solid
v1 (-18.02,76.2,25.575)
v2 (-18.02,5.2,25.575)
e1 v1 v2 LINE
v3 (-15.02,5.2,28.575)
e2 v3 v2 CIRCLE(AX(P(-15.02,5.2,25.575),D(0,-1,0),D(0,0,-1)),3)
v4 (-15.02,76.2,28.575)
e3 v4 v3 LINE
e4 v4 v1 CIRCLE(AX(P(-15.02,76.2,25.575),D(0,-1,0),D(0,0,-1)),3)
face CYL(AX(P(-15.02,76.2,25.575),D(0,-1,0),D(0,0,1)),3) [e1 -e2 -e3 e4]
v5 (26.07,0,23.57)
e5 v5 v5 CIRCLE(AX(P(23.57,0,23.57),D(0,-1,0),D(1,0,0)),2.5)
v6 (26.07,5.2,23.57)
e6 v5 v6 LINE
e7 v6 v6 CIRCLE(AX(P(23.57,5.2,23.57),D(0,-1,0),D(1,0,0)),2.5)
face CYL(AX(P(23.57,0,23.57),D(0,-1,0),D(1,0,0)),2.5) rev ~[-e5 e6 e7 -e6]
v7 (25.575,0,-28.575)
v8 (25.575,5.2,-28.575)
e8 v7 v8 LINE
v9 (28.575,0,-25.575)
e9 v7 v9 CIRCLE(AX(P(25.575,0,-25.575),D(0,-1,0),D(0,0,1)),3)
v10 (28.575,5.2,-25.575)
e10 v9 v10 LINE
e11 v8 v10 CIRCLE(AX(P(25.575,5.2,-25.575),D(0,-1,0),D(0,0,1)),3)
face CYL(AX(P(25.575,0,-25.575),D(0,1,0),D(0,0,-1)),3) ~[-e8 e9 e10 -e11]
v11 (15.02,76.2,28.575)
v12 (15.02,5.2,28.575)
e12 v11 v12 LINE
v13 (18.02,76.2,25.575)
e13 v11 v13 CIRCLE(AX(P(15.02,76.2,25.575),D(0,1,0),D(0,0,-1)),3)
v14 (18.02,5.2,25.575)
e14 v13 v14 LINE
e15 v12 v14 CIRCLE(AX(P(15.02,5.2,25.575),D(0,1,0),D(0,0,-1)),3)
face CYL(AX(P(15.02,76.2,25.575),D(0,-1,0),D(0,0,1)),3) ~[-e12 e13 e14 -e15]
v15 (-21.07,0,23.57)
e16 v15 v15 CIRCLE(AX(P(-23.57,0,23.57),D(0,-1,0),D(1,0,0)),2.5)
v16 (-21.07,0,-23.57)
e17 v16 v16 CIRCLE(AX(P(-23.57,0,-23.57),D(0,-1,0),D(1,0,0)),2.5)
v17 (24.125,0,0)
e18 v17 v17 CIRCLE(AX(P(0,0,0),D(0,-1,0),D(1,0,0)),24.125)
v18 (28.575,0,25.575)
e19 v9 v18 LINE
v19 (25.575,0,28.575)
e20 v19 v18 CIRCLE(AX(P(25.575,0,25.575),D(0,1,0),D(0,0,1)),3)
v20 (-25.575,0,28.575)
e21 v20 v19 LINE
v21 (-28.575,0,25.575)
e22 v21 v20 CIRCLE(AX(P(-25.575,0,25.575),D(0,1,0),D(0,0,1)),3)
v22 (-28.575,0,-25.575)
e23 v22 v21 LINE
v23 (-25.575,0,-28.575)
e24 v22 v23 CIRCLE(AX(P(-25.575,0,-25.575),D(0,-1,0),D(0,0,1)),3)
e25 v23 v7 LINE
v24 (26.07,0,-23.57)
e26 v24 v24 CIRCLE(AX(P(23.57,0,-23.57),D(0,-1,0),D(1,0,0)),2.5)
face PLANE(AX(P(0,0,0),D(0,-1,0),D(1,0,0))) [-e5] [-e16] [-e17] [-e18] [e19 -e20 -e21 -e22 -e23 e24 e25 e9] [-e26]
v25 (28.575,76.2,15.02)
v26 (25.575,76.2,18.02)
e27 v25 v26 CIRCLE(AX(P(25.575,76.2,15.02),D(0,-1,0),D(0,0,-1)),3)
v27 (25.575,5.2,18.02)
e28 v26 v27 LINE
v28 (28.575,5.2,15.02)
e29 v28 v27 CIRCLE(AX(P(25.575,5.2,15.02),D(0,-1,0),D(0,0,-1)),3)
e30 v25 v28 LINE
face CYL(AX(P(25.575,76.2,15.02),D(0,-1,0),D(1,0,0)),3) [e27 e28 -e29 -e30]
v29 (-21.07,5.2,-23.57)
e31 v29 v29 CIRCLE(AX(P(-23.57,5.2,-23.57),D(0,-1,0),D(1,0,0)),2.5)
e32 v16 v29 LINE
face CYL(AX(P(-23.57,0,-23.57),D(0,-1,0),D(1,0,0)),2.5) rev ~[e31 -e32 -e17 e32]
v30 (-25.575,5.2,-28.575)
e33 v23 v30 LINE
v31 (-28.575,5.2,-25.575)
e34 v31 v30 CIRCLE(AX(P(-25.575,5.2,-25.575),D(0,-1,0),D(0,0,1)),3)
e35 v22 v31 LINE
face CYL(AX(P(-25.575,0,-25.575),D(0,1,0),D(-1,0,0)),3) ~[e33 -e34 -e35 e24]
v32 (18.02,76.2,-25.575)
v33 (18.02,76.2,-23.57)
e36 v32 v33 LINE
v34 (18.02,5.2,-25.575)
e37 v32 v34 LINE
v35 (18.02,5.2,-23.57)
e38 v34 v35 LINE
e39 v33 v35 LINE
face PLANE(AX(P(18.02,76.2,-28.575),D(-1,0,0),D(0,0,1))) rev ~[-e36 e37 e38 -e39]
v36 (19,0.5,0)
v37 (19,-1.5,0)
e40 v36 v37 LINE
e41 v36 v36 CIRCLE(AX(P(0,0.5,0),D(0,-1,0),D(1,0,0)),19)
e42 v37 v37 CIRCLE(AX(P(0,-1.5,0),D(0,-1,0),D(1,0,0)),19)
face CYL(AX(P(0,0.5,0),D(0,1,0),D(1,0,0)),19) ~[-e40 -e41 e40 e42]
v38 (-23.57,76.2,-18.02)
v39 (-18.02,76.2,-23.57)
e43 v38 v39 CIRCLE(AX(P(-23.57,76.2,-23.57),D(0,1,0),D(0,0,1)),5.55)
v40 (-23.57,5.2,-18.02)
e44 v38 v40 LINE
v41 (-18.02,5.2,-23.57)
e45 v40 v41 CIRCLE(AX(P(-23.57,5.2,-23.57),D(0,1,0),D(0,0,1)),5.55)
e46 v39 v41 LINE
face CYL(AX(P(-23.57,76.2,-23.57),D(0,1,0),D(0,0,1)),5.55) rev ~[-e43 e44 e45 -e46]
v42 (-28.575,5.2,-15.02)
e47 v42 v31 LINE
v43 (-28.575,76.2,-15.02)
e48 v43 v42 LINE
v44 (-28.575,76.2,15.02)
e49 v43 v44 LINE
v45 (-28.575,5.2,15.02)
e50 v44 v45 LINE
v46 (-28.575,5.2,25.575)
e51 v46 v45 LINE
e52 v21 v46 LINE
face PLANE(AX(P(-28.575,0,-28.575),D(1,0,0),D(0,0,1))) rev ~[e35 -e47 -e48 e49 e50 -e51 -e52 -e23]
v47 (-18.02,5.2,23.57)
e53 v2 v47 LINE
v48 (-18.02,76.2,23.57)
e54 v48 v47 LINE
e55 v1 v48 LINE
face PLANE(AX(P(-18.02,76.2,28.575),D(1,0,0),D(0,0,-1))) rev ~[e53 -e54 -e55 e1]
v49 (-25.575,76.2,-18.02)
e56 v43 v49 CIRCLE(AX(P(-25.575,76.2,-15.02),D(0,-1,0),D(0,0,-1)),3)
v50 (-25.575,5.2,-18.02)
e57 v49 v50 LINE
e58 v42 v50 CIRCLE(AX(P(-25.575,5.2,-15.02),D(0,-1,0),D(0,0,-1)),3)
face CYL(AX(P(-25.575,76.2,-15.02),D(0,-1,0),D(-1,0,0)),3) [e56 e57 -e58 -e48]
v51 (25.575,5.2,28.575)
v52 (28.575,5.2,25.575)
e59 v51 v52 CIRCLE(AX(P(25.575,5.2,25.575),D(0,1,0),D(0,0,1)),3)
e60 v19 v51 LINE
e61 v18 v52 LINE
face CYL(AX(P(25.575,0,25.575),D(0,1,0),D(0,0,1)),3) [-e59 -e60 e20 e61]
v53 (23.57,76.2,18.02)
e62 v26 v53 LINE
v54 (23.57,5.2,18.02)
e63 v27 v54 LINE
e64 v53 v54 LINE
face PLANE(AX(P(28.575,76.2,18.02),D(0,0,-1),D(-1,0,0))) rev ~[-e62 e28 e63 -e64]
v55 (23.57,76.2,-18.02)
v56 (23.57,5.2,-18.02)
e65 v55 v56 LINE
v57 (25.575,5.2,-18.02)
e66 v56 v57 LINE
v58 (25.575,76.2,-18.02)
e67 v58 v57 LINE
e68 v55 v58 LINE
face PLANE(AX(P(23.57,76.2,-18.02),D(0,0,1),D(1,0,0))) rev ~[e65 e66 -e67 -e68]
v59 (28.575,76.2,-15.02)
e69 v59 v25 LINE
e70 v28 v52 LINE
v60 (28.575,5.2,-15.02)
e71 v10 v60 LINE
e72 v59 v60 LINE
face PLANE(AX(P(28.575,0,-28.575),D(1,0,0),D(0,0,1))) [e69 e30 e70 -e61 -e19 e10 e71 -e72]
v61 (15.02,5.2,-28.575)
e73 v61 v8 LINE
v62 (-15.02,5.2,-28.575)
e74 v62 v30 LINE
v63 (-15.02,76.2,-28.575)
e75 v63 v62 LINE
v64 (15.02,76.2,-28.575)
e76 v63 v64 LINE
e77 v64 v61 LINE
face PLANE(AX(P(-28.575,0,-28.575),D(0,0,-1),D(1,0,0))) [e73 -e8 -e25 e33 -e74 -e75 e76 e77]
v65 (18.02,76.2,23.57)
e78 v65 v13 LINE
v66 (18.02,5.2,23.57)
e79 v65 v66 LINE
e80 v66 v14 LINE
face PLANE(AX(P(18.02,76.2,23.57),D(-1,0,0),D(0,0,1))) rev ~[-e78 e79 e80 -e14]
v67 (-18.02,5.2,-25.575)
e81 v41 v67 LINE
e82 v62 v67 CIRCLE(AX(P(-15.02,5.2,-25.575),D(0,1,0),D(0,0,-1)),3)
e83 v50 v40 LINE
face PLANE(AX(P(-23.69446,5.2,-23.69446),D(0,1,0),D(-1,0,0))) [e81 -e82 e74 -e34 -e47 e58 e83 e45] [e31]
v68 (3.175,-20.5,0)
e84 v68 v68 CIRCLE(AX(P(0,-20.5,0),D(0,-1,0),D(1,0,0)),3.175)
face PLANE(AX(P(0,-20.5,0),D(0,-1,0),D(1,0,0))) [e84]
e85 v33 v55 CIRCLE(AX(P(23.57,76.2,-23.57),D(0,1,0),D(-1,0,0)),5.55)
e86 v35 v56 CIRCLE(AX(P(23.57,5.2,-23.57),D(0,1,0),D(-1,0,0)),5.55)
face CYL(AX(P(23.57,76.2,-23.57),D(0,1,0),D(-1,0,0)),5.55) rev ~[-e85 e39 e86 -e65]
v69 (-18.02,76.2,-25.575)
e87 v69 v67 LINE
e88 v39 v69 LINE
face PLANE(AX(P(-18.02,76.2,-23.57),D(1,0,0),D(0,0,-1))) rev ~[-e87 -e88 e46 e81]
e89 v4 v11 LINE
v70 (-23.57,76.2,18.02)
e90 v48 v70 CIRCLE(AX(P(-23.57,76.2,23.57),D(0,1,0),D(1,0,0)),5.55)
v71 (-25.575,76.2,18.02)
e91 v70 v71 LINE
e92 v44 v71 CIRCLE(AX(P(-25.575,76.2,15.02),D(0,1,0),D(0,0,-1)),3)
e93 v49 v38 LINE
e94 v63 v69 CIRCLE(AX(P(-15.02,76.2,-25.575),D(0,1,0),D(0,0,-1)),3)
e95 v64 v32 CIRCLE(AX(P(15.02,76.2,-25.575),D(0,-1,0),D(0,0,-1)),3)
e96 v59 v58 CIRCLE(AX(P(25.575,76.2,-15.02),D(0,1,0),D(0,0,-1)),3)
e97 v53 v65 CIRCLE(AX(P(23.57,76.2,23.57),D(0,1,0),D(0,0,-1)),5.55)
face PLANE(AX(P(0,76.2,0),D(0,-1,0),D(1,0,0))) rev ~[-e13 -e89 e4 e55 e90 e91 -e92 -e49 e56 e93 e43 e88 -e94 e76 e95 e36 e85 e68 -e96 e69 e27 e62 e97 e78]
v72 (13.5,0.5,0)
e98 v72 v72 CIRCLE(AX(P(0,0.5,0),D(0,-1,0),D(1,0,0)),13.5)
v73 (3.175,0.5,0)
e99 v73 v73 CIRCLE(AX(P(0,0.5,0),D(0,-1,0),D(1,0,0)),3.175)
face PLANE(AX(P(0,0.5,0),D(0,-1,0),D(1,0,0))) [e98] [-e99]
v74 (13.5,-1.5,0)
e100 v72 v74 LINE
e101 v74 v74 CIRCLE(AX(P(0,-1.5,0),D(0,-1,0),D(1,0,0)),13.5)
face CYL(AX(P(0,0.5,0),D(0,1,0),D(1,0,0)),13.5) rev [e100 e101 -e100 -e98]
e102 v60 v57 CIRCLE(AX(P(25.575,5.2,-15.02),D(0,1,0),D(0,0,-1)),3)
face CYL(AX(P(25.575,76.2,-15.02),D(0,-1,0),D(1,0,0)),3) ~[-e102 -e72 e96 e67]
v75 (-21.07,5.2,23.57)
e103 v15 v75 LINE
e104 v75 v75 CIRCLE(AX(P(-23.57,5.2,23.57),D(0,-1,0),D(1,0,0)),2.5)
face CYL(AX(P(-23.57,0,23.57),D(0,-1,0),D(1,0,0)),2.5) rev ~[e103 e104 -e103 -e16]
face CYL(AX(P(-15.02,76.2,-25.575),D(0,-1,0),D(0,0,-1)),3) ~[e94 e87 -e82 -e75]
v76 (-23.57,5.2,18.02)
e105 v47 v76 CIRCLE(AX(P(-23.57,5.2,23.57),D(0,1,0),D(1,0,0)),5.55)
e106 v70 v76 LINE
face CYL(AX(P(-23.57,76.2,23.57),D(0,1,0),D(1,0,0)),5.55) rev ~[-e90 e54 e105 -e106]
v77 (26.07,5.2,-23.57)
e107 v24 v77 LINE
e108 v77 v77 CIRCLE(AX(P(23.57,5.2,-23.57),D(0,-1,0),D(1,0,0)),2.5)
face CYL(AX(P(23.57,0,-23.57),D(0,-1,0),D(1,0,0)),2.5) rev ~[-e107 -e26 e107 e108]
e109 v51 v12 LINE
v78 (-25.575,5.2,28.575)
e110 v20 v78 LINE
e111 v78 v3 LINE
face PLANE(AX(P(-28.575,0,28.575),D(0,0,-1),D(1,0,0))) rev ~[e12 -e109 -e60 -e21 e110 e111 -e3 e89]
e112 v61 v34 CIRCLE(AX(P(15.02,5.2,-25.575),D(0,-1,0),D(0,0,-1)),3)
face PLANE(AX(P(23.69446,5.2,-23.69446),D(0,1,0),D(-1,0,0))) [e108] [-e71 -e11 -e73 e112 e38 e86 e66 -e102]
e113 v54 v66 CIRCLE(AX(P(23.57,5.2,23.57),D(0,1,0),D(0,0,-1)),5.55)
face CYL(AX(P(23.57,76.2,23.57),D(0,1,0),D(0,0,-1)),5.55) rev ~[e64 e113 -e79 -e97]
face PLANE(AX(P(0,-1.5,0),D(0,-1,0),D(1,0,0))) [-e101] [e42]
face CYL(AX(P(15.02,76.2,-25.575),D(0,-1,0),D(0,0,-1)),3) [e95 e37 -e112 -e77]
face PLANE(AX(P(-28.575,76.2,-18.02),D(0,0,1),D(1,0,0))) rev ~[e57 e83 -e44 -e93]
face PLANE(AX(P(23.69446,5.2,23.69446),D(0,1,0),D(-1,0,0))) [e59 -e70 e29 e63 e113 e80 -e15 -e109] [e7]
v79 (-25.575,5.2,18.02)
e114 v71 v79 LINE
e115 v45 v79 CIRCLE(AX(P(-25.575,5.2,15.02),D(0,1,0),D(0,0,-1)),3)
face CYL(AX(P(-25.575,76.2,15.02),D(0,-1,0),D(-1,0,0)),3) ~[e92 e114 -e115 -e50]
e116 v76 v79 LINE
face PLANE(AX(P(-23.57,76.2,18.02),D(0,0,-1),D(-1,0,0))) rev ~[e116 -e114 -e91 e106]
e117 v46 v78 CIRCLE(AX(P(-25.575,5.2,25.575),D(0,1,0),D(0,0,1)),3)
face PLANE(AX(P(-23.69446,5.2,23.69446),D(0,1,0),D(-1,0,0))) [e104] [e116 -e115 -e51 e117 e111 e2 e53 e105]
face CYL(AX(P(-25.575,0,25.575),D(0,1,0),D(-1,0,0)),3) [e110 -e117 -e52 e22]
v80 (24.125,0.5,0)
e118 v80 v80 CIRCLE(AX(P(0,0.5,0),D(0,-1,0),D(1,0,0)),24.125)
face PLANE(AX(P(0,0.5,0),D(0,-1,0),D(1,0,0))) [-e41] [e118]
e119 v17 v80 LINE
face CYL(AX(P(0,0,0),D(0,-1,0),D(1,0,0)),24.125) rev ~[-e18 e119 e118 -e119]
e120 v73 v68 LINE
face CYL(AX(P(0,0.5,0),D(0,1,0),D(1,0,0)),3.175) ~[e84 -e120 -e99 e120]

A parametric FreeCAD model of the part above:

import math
import FreeCAD as App
import Part
import Sketcher
from FreeCAD import Vector


def edges_at(feature, points):
    """Names of the edges that pass closest to the given points."""
    edges = feature.Shape.Edges
    near = lambda p: min(range(len(edges)), key=lambda i: edges[i].distToShape(Part.Vertex(*p))[0])
    return sorted({f"Edge{near(p) + 1}" for p in points})

doc = App.newDocument("Part")
body = doc.addObject("PartDesign::Body", "Body")

sketch1 = body.newObject("Sketcher::SketchObject", "Sketch")
sketch1.AttachmentSupport = (doc.getObject("XZ_Plane"), [""])
sketch1.MapMode = "FlatFace"
sketch1.addGeometry([
    Part.LineSegment(Vector(-29, 29, 0), Vector(-29, -29, 0)),
    Part.LineSegment(Vector(-29, -29, 0), Vector(29, -29, 0)),
    Part.LineSegment(Vector(29, -29, 0), Vector(29, 29, 0)),
    Part.LineSegment(Vector(29, 29, 0), Vector(-29, 29, 0)),
], False)
sketch1.addConstraint([
    Sketcher.Constraint("Coincident", 0, 2, 1, 1),
    Sketcher.Constraint("Coincident", 1, 2, 2, 1),
    Sketcher.Constraint("Coincident", 2, 2, 3, 1),
    Sketcher.Constraint("Coincident", 3, 2, 0, 1),
    Sketcher.Constraint("Vertical", 0),
    Sketcher.Constraint("Horizontal", 1),
    Sketcher.Constraint("Vertical", 2),
    Sketcher.Constraint("Horizontal", 3),
    Sketcher.Constraint("Symmetric", 0, 2, 2, 2, -1, 1),
    Sketcher.Constraint("Equal", 3, 0),
    Sketcher.Constraint("DistanceX", 1, 1, 1, 2, 57.15),
])
pad1 = body.newObject("PartDesign::Pad", "Pad")
pad1.Profile = sketch1
pad1.Length = 76.2
pad1.Reversed = True

sketch2 = body.newObject("Sketcher::SketchObject", "Sketch001")
sketch2.AttachmentSupport = (doc.getObject("XZ_Plane"), [""])
sketch2.MapMode = "FlatFace"
sketch2.addGeometry([
    Part.Circle(Vector(-23.6, 23.6, 0), Vector(0, 0, 1), 2.5),
    Part.Circle(Vector(23.6, 23.6, 0), Vector(0, 0, 1), 2.5),
    Part.Circle(Vector(-23.6, -23.6, 0), Vector(0, 0, 1), 2.5),
    Part.Circle(Vector(23.6, -23.6, 0), Vector(0, 0, 1), 2.5),
], False)
sketch2.addConstraint([
    Sketcher.Constraint("Equal", 0, 1),
    Sketcher.Constraint("Equal", 1, 2),
    Sketcher.Constraint("Equal", 2, 3),
    Sketcher.Constraint("Symmetric", 1, 3, 2, 3, -1, 1),
    Sketcher.Constraint("Symmetric", 0, 3, 3, 3, -1, 1),
    Sketcher.Constraint("Symmetric", 0, 3, 1, 3, -2),
    Sketcher.Constraint("Diameter", 0, 5.0),
    Sketcher.Constraint("DistanceX", 0, 3, -1, 1, 23.57),
    Sketcher.Constraint("DistanceY", -1, 1, 0, 3, 23.57),
])
pocket1 = body.newObject("PartDesign::Pocket", "Pocket")
pocket1.Profile = sketch2
pocket1.Type = "ThroughAll"

sketch3 = body.newObject("Sketcher::SketchObject", "Sketch002")
sketch3.AttachmentSupport = (doc.getObject("XZ_Plane"), [""])
sketch3.MapMode = "FlatFace"
sketch3.AttachmentOffset = App.Placement(Vector(0, 0, -76.2), App.Rotation())
sketch3.addGeometry([
    Part.LineSegment(Vector(29, 18, 0), Vector(24, 18, 0)),
    Part.ArcOfCircle(Part.Circle(Vector(24, 24, 0), Vector(0, 0, 1), 6), math.radians(180), math.radians(270)),
    Part.LineSegment(Vector(18, 24, 0), Vector(18, 29, 0)),
    Part.LineSegment(Vector(18, 29, 0), Vector(29, 29, 0)),
    Part.LineSegment(Vector(29, 29, 0), Vector(29, 18, 0)),
    Part.LineSegment(Vector(-18, 29, 0), Vector(-18, 24, 0)),
    Part.ArcOfCircle(Part.Circle(Vector(-24, 24, 0), Vector(0, 0, 1), 6), math.radians(-90), math.radians(0)),
    Part.LineSegment(Vector(-24, 18, 0), Vector(-29, 18, 0)),
    Part.LineSegment(Vector(-29, 18, 0), Vector(-29, 29, 0)),
    Part.LineSegment(Vector(-29, 29, 0), Vector(-18, 29, 0)),
    Part.ArcOfCircle(Part.Circle(Vector(-24, -24, 0), Vector(0, 0, 1), 6), math.radians(0), math.radians(90)),
    Part.LineSegment(Vector(-18, -24, 0), Vector(-18, -29, 0)),
    Part.LineSegment(Vector(-18, -29, 0), Vector(-29, -29, 0)),
    Part.LineSegment(Vector(-29, -29, 0), Vector(-29, -18, 0)),
    Part.LineSegment(Vector(-29, -18, 0), Vector(-24, -18, 0)),
    Part.ArcOfCircle(Part.Circle(Vector(24, -24, 0), Vector(0, 0, 1), 6), math.radians(90), math.radians(180)),
    Part.LineSegment(Vector(24, -18, 0), Vector(29, -18, 0)),
    Part.LineSegment(Vector(29, -18, 0), Vector(29, -29, 0)),
    Part.LineSegment(Vector(29, -29, 0), Vector(18, -29, 0)),
    Part.LineSegment(Vector(18, -29, 0), Vector(18, -24, 0)),
], False)
sketch3.addConstraint([
    Sketcher.Constraint("Tangent", 0, 2, 1, 2),
    Sketcher.Constraint("Tangent", 1, 1, 2, 1),
    Sketcher.Constraint("Coincident", 2, 2, 3, 1),
    Sketcher.Constraint("Coincident", 3, 2, 4, 1),
    Sketcher.Constraint("Coincident", 4, 2, 0, 1),
    Sketcher.Constraint("Tangent", 5, 2, 6, 2),
    Sketcher.Constraint("Tangent", 6, 1, 7, 1),
    Sketcher.Constraint("Coincident", 7, 2, 8, 1),
    Sketcher.Constraint("Coincident", 8, 2, 9, 1),
    Sketcher.Constraint("Coincident", 9, 2, 5, 1),
    Sketcher.Constraint("Tangent", 10, 1, 11, 1),
    Sketcher.Constraint("Coincident", 11, 2, 12, 1),
    Sketcher.Constraint("Coincident", 12, 2, 13, 1),
    Sketcher.Constraint("Coincident", 13, 2, 14, 1),
    Sketcher.Constraint("Tangent", 14, 2, 10, 2),
    Sketcher.Constraint("Tangent", 15, 1, 16, 1),
    Sketcher.Constraint("Coincident", 16, 2, 17, 1),
    Sketcher.Constraint("Coincident", 17, 2, 18, 1),
    Sketcher.Constraint("Coincident", 18, 2, 19, 1),
    Sketcher.Constraint("Tangent", 19, 2, 15, 2),
    Sketcher.Constraint("Horizontal", 0),
    Sketcher.Constraint("Vertical", 2),
    Sketcher.Constraint("Horizontal", 3),
    Sketcher.Constraint("Vertical", 4),
    Sketcher.Constraint("Vertical", 5),
    Sketcher.Constraint("Horizontal", 7),
    Sketcher.Constraint("Vertical", 8),
    Sketcher.Constraint("Horizontal", 9),
    Sketcher.Constraint("Vertical", 11),
    Sketcher.Constraint("Horizontal", 12),
    Sketcher.Constraint("Vertical", 13),
    Sketcher.Constraint("Horizontal", 14),
    Sketcher.Constraint("Horizontal", 16),
    Sketcher.Constraint("Vertical", 17),
    Sketcher.Constraint("Horizontal", 18),
    Sketcher.Constraint("Vertical", 19),
    Sketcher.Constraint("Equal", 1, 6),
    Sketcher.Constraint("Equal", 6, 10),
    Sketcher.Constraint("Equal", 10, 15),
    Sketcher.Constraint("Symmetric", 1, 3, 10, 3, -1, 1),
    Sketcher.Constraint("Symmetric", 6, 3, 15, 3, -1, 1),
    Sketcher.Constraint("Symmetric", 3, 2, 12, 2, -1, 1),
    Sketcher.Constraint("Symmetric", 8, 2, 17, 2, -1, 1),
    Sketcher.Constraint("Symmetric", 1, 3, 6, 3, -2),
    Sketcher.Constraint("Symmetric", 3, 2, 8, 2, -2),
    Sketcher.Constraint("Equal", 16, 2),
    Sketcher.Constraint("Radius", 1, 5.55),
    Sketcher.Constraint("DistanceX", 0, 2, 0, 1, 5.005),
    Sketcher.Constraint("DistanceX", -1, 1, 1, 3, 23.57),
    Sketcher.Constraint("DistanceY", -1, 1, 1, 3, 23.57),
])
pocket2 = body.newObject("PartDesign::Pocket", "Pocket001")
pocket2.Profile = sketch3
pocket2.Length = 71
pocket2.Reversed = True
doc.recompute()

fillet = body.newObject("PartDesign::Fillet", "Fillet")
fillet.Base = (pocket2, edges_at(pocket2, [
    (-18.02, 40.7, 28.575),
    (-28.575, 40.7, 18.02),
    (-28.575, 2.6, 28.575),
    (28.575, 2.6, 28.575),
    (18.02, 40.7, 28.575),
    (28.575, 40.7, 18.02),
    (-28.575, 2.6, -28.575),
    (-28.575, 40.7, -18.02),
    (-18.02, 40.7, -28.575),
    (28.575, 2.6, -28.575),
    (28.575, 40.7, -18.02),
    (18.02, 40.7, -28.575),
]))
fillet.Radius = 3

sketch4 = body.newObject("Sketcher::SketchObject", "Sketch003")
sketch4.AttachmentSupport = (doc.getObject("XZ_Plane"), [""])
sketch4.MapMode = "FlatFace"
sketch4.addGeometry(Part.Circle(Vector(0, 0, 0), Vector(0, 0, 1), 24), False)
sketch4.addConstraint([
    Sketcher.Constraint("Coincident", 0, 3, -1, 1),
    Sketcher.Constraint("Diameter", 0, 48.25),
])
pocket3 = body.newObject("PartDesign::Pocket", "Pocket002")
pocket3.Profile = sketch4
pocket3.Length = 0.5

sketch5 = body.newObject("Sketcher::SketchObject", "Sketch004")
sketch5.AttachmentSupport = (doc.getObject("XZ_Plane"), [""])
sketch5.MapMode = "FlatFace"
sketch5.AttachmentOffset = App.Placement(Vector(0, 0, -0.5), App.Rotation())
sketch5.addGeometry([
    Part.Circle(Vector(0, 0, 0), Vector(0, 0, 1), 19),
    Part.Circle(Vector(0, 0, 0), Vector(0, 0, 1), 14),
], False)
sketch5.addConstraint([
    Sketcher.Constraint("Coincident", 0, 3, -1, 1),
    Sketcher.Constraint("Coincident", 1, 3, -1, 1),
    Sketcher.Constraint("Diameter", 0, 38.0),
    Sketcher.Constraint("Diameter", 1, 27.0),
])
pad2 = body.newObject("PartDesign::Pad", "Pad001")
pad2.Profile = sketch5
pad2.Length = 2

sketch6 = body.newObject("Sketcher::SketchObject", "Sketch005")
sketch6.AttachmentSupport = (doc.getObject("XZ_Plane"), [""])
sketch6.MapMode = "FlatFace"
sketch6.AttachmentOffset = App.Placement(Vector(0, 0, -0.5), App.Rotation())
sketch6.addGeometry(Part.Circle(Vector(0, 0, 0), Vector(0, 0, 1), 3.2), False)
sketch6.addConstraint([
    Sketcher.Constraint("Coincident", 0, 3, -1, 1),
    Sketcher.Constraint("Diameter", 0, 6.35),
])
pad3 = body.newObject("PartDesign::Pad", "Pad002")
pad3.Profile = sketch6
pad3.Length = 21

doc.recompute()
